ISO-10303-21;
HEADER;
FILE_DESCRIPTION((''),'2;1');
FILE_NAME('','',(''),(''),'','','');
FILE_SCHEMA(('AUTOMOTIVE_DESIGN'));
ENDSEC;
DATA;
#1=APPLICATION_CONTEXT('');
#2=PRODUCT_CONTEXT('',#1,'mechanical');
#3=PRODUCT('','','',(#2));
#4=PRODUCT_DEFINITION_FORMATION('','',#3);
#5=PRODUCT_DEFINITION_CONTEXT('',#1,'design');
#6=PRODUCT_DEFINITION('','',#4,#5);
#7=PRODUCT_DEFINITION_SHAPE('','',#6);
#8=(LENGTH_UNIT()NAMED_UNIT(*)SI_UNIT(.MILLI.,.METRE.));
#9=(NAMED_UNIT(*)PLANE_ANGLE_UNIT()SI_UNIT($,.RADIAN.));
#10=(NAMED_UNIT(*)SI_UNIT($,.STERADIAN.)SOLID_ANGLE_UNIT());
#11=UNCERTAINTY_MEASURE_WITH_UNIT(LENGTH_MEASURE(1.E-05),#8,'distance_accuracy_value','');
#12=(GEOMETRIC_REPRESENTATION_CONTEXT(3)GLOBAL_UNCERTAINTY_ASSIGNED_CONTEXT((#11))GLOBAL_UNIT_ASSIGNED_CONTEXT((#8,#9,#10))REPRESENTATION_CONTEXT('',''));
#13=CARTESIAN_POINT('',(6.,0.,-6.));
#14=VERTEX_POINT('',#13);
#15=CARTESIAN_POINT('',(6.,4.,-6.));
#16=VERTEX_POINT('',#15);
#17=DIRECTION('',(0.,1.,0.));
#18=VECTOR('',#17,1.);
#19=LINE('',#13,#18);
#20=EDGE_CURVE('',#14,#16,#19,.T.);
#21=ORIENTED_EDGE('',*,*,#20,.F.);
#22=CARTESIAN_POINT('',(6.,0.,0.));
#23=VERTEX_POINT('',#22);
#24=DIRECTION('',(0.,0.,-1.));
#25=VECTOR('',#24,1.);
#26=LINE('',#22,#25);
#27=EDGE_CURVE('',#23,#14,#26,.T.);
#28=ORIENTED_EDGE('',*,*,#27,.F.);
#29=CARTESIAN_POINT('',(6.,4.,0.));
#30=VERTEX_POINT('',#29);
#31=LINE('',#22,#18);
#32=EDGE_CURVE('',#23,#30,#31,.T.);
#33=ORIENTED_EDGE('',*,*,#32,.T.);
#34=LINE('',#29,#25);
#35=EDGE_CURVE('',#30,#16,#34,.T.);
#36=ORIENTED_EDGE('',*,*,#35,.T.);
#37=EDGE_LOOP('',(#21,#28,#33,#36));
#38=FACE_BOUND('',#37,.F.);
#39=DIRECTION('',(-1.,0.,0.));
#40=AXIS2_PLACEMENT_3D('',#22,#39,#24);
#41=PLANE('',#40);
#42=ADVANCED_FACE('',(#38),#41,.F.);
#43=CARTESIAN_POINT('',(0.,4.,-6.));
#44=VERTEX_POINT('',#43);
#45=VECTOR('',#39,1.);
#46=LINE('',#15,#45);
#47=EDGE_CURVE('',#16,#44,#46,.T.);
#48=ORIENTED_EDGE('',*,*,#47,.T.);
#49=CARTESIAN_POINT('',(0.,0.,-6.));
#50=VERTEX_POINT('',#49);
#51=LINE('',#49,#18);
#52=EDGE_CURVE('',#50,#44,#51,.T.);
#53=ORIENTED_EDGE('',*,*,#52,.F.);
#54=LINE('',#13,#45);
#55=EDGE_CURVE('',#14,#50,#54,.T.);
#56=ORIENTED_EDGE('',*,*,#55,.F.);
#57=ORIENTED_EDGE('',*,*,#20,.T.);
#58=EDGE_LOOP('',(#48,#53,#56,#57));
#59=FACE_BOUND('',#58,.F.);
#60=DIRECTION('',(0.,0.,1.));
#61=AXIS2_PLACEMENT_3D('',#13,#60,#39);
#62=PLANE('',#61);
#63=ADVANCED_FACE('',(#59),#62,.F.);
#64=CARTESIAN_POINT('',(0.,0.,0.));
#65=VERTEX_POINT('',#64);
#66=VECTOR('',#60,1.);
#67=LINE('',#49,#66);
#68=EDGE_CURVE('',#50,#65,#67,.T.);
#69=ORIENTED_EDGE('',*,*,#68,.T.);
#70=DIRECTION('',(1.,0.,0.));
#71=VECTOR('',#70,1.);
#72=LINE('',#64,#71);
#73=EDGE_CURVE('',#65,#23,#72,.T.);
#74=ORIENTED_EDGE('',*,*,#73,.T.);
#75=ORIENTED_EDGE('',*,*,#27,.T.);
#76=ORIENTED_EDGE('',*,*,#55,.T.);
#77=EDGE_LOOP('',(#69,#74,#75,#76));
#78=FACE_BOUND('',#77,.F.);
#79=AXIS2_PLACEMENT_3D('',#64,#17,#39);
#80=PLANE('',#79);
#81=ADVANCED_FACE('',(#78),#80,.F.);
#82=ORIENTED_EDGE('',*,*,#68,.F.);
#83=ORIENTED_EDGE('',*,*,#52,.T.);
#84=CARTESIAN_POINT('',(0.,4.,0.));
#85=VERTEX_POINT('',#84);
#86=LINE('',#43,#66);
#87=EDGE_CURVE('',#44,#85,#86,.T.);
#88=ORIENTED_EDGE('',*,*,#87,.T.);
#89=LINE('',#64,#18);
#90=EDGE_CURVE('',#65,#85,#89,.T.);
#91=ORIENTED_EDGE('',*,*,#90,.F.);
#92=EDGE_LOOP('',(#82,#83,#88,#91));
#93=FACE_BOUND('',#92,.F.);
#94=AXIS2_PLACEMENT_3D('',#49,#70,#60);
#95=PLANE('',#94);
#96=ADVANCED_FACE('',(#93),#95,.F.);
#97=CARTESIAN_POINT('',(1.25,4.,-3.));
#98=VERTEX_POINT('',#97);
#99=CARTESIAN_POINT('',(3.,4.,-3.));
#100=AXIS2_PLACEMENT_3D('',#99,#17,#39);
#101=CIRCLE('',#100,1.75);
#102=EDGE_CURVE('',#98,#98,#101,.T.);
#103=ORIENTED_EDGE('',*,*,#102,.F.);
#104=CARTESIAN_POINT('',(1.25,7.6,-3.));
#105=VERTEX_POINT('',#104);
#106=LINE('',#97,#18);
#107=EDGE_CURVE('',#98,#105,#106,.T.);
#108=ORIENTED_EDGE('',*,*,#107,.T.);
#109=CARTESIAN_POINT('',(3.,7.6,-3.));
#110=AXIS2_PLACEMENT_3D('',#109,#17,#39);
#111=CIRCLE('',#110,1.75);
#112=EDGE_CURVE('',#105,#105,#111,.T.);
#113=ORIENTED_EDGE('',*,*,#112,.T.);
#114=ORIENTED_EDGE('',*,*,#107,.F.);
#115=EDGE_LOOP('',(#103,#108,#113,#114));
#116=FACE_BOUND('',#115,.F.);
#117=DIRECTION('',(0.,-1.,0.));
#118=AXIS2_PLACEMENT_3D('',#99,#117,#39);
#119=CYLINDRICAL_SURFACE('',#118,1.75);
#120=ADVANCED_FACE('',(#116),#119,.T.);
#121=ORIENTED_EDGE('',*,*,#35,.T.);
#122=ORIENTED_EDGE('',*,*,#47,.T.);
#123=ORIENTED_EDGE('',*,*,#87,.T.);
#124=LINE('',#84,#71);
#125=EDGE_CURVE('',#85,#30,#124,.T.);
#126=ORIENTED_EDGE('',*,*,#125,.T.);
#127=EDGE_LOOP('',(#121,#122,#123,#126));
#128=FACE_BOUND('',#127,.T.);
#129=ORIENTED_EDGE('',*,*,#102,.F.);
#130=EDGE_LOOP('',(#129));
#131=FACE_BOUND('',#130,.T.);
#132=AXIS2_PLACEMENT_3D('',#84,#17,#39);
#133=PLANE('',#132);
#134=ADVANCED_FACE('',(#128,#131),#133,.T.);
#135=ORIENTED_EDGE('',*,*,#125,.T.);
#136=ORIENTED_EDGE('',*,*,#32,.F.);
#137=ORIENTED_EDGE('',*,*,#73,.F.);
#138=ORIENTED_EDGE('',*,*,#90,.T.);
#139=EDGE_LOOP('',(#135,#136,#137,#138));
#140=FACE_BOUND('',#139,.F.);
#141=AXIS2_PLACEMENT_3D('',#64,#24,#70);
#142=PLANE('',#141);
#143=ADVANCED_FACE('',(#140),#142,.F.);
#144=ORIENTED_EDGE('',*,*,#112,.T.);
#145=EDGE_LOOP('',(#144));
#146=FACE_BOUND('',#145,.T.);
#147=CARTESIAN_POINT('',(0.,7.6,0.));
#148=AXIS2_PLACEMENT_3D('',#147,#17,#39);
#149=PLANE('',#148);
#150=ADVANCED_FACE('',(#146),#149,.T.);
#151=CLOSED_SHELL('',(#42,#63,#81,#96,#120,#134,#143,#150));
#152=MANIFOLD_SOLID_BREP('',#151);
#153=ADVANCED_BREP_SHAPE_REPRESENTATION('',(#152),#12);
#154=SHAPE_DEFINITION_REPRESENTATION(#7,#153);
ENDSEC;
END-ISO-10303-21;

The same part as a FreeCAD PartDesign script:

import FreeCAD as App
import Part
import Sketcher
from FreeCAD import Vector
Q = App.Units.Quantity


def add_polygon(sketch, points):
    """Adds a closed chain of lines whose ends are joined by coincident constraints."""
    first, n = sketch.GeometryCount, len(points)
    for a, b in zip(points, points[1:] + points[:1]):
        sketch.addGeometry(Part.LineSegment(App.Vector(*a, 0), App.Vector(*b, 0)), False)
    for i in range(n):
        sketch.addConstraint(Sketcher.Constraint("Coincident", first + i, 2, first + (i + 1) % n, 1))

doc = App.newDocument("Part")
body = doc.addObject("PartDesign::Body", "Body")

# Sketch on XZ plane
sketch1 = body.newObject("Sketcher::SketchObject", "Sketch")
sketch1.AttachmentSupport = (doc.getObject("XZ_Plane"), [""])
sketch1.MapMode = "FlatFace"
add_polygon(sketch1, [(0, -6), (0, 0), (6, 0), (6, -6)])  # lines 0-3
sketch1.addConstraint([
    Sketcher.Constraint("Vertical", 0),
    Sketcher.Constraint("Horizontal", 1),
    Sketcher.Constraint("Vertical", 2),
    Sketcher.Constraint("Horizontal", 3),
    Sketcher.Constraint("Coincident", 0, 2, -1, 1),
    Sketcher.Constraint("Equal", 3, 0),
    Sketcher.Constraint("DistanceX", 1, 1, 1, 2, Q("6 mm")),
])
pad1 = body.newObject("PartDesign::Pad", "Pad")
pad1.Profile = sketch1
pad1.Length = 4
pad1.Reversed = True

# Sketch on XZ plane
sketch2 = body.newObject("Sketcher::SketchObject", "Sketch001")
sketch2.AttachmentSupport = (doc.getObject("XZ_Plane"), [""])
sketch2.MapMode = "FlatFace"
sketch2.AttachmentOffset = App.Placement(Vector(0, 0, -4), App.Rotation())
sketch2.addGeometry(Part.Circle(Vector(3, -3, 0), Vector(0, 0, 1), 1.8), False)
sketch2.addConstraint([
    Sketcher.Constraint("Diameter", 0, Q("3.5 mm")),
    Sketcher.Constraint("DistanceX", -1, 1, 0, 3, Q("3 mm")),
    Sketcher.Constraint("DistanceY", 0, 3, -1, 1, Q("3 mm")),
])
pad2 = body.newObject("PartDesign::Pad", "Pad001")
pad2.Profile = sketch2
pad2.Length = 3.6
pad2.Reversed = True

doc.recompute()
